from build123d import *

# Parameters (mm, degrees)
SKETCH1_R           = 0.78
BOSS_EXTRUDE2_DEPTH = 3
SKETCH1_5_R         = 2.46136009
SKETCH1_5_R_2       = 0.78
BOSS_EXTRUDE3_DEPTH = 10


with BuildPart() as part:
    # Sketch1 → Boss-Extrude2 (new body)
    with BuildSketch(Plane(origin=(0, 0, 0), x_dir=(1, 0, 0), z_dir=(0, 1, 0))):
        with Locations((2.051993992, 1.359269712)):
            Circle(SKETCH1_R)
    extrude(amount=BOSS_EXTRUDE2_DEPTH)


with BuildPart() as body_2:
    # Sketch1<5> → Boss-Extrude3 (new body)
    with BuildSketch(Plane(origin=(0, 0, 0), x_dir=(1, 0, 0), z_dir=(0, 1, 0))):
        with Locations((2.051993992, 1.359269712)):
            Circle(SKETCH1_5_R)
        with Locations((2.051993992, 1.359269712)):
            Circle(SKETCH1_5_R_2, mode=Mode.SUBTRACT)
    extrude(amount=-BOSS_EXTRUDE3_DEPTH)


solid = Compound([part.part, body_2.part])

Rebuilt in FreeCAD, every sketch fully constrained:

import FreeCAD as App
import Part
import Sketcher

V = App.Vector

doc = App.newDocument("Part")
body = doc.addObject("PartDesign::Body", "Body")

# Sketch on XZ plane
sketch1 = body.newObject("Sketcher::SketchObject", "Sketch")
sketch1.AttachmentSupport = (doc.getObject("XZ_Plane"), [""])
sketch1.MapMode = "FlatFace"
sketch1.addGeometry(Part.Circle(V(2.1, -1.4, 0), V(0, 0, 1), 0.8), False)
sketch1.addConstraint([
    Sketcher.Constraint("Diameter", 0, 1.56),
    Sketcher.Constraint("DistanceY", 0, 3, -1, 1, 1.35927),
    Sketcher.Constraint("DistanceX", -1, 1, 0, 3, 2.051994),
])
pad1 = body.newObject("PartDesign::Pad", "Pad")
pad1.Profile = sketch1
pad1.Length = 3
pad1.Reversed = True
body2 = doc.addObject("PartDesign::Body", "Body001")

# Sketch on XZ plane
sketch2 = body2.newObject("Sketcher::SketchObject", "Sketch001")
sketch2.AttachmentSupport = (doc.getObject("XZ_Plane001"), [""])
sketch2.MapMode = "FlatFace"
sketch2.addGeometry([
    Part.Circle(V(2.1, -1.4, 0), V(0, 0, 1), 2.5),
    Part.Circle(V(2.1, -1.4, 0), V(0, 0, 1), 0.8),
], False)
sketch2.addConstraint([
    Sketcher.Constraint("Coincident", 1, 3, 0, 3),
    Sketcher.Constraint("Diameter", 1, 1.56),
    Sketcher.Constraint("Diameter", 0, 4.92272),
    Sketcher.Constraint("DistanceY", 0, 3, -1, 1, 1.35927),
    Sketcher.Constraint("DistanceX", -1, 1, 0, 3, 2.051994),
])
pad2 = body2.newObject("PartDesign::Pad", "Pad001")
pad2.Profile = sketch2
pad2.Length = 10

doc.recompute()
